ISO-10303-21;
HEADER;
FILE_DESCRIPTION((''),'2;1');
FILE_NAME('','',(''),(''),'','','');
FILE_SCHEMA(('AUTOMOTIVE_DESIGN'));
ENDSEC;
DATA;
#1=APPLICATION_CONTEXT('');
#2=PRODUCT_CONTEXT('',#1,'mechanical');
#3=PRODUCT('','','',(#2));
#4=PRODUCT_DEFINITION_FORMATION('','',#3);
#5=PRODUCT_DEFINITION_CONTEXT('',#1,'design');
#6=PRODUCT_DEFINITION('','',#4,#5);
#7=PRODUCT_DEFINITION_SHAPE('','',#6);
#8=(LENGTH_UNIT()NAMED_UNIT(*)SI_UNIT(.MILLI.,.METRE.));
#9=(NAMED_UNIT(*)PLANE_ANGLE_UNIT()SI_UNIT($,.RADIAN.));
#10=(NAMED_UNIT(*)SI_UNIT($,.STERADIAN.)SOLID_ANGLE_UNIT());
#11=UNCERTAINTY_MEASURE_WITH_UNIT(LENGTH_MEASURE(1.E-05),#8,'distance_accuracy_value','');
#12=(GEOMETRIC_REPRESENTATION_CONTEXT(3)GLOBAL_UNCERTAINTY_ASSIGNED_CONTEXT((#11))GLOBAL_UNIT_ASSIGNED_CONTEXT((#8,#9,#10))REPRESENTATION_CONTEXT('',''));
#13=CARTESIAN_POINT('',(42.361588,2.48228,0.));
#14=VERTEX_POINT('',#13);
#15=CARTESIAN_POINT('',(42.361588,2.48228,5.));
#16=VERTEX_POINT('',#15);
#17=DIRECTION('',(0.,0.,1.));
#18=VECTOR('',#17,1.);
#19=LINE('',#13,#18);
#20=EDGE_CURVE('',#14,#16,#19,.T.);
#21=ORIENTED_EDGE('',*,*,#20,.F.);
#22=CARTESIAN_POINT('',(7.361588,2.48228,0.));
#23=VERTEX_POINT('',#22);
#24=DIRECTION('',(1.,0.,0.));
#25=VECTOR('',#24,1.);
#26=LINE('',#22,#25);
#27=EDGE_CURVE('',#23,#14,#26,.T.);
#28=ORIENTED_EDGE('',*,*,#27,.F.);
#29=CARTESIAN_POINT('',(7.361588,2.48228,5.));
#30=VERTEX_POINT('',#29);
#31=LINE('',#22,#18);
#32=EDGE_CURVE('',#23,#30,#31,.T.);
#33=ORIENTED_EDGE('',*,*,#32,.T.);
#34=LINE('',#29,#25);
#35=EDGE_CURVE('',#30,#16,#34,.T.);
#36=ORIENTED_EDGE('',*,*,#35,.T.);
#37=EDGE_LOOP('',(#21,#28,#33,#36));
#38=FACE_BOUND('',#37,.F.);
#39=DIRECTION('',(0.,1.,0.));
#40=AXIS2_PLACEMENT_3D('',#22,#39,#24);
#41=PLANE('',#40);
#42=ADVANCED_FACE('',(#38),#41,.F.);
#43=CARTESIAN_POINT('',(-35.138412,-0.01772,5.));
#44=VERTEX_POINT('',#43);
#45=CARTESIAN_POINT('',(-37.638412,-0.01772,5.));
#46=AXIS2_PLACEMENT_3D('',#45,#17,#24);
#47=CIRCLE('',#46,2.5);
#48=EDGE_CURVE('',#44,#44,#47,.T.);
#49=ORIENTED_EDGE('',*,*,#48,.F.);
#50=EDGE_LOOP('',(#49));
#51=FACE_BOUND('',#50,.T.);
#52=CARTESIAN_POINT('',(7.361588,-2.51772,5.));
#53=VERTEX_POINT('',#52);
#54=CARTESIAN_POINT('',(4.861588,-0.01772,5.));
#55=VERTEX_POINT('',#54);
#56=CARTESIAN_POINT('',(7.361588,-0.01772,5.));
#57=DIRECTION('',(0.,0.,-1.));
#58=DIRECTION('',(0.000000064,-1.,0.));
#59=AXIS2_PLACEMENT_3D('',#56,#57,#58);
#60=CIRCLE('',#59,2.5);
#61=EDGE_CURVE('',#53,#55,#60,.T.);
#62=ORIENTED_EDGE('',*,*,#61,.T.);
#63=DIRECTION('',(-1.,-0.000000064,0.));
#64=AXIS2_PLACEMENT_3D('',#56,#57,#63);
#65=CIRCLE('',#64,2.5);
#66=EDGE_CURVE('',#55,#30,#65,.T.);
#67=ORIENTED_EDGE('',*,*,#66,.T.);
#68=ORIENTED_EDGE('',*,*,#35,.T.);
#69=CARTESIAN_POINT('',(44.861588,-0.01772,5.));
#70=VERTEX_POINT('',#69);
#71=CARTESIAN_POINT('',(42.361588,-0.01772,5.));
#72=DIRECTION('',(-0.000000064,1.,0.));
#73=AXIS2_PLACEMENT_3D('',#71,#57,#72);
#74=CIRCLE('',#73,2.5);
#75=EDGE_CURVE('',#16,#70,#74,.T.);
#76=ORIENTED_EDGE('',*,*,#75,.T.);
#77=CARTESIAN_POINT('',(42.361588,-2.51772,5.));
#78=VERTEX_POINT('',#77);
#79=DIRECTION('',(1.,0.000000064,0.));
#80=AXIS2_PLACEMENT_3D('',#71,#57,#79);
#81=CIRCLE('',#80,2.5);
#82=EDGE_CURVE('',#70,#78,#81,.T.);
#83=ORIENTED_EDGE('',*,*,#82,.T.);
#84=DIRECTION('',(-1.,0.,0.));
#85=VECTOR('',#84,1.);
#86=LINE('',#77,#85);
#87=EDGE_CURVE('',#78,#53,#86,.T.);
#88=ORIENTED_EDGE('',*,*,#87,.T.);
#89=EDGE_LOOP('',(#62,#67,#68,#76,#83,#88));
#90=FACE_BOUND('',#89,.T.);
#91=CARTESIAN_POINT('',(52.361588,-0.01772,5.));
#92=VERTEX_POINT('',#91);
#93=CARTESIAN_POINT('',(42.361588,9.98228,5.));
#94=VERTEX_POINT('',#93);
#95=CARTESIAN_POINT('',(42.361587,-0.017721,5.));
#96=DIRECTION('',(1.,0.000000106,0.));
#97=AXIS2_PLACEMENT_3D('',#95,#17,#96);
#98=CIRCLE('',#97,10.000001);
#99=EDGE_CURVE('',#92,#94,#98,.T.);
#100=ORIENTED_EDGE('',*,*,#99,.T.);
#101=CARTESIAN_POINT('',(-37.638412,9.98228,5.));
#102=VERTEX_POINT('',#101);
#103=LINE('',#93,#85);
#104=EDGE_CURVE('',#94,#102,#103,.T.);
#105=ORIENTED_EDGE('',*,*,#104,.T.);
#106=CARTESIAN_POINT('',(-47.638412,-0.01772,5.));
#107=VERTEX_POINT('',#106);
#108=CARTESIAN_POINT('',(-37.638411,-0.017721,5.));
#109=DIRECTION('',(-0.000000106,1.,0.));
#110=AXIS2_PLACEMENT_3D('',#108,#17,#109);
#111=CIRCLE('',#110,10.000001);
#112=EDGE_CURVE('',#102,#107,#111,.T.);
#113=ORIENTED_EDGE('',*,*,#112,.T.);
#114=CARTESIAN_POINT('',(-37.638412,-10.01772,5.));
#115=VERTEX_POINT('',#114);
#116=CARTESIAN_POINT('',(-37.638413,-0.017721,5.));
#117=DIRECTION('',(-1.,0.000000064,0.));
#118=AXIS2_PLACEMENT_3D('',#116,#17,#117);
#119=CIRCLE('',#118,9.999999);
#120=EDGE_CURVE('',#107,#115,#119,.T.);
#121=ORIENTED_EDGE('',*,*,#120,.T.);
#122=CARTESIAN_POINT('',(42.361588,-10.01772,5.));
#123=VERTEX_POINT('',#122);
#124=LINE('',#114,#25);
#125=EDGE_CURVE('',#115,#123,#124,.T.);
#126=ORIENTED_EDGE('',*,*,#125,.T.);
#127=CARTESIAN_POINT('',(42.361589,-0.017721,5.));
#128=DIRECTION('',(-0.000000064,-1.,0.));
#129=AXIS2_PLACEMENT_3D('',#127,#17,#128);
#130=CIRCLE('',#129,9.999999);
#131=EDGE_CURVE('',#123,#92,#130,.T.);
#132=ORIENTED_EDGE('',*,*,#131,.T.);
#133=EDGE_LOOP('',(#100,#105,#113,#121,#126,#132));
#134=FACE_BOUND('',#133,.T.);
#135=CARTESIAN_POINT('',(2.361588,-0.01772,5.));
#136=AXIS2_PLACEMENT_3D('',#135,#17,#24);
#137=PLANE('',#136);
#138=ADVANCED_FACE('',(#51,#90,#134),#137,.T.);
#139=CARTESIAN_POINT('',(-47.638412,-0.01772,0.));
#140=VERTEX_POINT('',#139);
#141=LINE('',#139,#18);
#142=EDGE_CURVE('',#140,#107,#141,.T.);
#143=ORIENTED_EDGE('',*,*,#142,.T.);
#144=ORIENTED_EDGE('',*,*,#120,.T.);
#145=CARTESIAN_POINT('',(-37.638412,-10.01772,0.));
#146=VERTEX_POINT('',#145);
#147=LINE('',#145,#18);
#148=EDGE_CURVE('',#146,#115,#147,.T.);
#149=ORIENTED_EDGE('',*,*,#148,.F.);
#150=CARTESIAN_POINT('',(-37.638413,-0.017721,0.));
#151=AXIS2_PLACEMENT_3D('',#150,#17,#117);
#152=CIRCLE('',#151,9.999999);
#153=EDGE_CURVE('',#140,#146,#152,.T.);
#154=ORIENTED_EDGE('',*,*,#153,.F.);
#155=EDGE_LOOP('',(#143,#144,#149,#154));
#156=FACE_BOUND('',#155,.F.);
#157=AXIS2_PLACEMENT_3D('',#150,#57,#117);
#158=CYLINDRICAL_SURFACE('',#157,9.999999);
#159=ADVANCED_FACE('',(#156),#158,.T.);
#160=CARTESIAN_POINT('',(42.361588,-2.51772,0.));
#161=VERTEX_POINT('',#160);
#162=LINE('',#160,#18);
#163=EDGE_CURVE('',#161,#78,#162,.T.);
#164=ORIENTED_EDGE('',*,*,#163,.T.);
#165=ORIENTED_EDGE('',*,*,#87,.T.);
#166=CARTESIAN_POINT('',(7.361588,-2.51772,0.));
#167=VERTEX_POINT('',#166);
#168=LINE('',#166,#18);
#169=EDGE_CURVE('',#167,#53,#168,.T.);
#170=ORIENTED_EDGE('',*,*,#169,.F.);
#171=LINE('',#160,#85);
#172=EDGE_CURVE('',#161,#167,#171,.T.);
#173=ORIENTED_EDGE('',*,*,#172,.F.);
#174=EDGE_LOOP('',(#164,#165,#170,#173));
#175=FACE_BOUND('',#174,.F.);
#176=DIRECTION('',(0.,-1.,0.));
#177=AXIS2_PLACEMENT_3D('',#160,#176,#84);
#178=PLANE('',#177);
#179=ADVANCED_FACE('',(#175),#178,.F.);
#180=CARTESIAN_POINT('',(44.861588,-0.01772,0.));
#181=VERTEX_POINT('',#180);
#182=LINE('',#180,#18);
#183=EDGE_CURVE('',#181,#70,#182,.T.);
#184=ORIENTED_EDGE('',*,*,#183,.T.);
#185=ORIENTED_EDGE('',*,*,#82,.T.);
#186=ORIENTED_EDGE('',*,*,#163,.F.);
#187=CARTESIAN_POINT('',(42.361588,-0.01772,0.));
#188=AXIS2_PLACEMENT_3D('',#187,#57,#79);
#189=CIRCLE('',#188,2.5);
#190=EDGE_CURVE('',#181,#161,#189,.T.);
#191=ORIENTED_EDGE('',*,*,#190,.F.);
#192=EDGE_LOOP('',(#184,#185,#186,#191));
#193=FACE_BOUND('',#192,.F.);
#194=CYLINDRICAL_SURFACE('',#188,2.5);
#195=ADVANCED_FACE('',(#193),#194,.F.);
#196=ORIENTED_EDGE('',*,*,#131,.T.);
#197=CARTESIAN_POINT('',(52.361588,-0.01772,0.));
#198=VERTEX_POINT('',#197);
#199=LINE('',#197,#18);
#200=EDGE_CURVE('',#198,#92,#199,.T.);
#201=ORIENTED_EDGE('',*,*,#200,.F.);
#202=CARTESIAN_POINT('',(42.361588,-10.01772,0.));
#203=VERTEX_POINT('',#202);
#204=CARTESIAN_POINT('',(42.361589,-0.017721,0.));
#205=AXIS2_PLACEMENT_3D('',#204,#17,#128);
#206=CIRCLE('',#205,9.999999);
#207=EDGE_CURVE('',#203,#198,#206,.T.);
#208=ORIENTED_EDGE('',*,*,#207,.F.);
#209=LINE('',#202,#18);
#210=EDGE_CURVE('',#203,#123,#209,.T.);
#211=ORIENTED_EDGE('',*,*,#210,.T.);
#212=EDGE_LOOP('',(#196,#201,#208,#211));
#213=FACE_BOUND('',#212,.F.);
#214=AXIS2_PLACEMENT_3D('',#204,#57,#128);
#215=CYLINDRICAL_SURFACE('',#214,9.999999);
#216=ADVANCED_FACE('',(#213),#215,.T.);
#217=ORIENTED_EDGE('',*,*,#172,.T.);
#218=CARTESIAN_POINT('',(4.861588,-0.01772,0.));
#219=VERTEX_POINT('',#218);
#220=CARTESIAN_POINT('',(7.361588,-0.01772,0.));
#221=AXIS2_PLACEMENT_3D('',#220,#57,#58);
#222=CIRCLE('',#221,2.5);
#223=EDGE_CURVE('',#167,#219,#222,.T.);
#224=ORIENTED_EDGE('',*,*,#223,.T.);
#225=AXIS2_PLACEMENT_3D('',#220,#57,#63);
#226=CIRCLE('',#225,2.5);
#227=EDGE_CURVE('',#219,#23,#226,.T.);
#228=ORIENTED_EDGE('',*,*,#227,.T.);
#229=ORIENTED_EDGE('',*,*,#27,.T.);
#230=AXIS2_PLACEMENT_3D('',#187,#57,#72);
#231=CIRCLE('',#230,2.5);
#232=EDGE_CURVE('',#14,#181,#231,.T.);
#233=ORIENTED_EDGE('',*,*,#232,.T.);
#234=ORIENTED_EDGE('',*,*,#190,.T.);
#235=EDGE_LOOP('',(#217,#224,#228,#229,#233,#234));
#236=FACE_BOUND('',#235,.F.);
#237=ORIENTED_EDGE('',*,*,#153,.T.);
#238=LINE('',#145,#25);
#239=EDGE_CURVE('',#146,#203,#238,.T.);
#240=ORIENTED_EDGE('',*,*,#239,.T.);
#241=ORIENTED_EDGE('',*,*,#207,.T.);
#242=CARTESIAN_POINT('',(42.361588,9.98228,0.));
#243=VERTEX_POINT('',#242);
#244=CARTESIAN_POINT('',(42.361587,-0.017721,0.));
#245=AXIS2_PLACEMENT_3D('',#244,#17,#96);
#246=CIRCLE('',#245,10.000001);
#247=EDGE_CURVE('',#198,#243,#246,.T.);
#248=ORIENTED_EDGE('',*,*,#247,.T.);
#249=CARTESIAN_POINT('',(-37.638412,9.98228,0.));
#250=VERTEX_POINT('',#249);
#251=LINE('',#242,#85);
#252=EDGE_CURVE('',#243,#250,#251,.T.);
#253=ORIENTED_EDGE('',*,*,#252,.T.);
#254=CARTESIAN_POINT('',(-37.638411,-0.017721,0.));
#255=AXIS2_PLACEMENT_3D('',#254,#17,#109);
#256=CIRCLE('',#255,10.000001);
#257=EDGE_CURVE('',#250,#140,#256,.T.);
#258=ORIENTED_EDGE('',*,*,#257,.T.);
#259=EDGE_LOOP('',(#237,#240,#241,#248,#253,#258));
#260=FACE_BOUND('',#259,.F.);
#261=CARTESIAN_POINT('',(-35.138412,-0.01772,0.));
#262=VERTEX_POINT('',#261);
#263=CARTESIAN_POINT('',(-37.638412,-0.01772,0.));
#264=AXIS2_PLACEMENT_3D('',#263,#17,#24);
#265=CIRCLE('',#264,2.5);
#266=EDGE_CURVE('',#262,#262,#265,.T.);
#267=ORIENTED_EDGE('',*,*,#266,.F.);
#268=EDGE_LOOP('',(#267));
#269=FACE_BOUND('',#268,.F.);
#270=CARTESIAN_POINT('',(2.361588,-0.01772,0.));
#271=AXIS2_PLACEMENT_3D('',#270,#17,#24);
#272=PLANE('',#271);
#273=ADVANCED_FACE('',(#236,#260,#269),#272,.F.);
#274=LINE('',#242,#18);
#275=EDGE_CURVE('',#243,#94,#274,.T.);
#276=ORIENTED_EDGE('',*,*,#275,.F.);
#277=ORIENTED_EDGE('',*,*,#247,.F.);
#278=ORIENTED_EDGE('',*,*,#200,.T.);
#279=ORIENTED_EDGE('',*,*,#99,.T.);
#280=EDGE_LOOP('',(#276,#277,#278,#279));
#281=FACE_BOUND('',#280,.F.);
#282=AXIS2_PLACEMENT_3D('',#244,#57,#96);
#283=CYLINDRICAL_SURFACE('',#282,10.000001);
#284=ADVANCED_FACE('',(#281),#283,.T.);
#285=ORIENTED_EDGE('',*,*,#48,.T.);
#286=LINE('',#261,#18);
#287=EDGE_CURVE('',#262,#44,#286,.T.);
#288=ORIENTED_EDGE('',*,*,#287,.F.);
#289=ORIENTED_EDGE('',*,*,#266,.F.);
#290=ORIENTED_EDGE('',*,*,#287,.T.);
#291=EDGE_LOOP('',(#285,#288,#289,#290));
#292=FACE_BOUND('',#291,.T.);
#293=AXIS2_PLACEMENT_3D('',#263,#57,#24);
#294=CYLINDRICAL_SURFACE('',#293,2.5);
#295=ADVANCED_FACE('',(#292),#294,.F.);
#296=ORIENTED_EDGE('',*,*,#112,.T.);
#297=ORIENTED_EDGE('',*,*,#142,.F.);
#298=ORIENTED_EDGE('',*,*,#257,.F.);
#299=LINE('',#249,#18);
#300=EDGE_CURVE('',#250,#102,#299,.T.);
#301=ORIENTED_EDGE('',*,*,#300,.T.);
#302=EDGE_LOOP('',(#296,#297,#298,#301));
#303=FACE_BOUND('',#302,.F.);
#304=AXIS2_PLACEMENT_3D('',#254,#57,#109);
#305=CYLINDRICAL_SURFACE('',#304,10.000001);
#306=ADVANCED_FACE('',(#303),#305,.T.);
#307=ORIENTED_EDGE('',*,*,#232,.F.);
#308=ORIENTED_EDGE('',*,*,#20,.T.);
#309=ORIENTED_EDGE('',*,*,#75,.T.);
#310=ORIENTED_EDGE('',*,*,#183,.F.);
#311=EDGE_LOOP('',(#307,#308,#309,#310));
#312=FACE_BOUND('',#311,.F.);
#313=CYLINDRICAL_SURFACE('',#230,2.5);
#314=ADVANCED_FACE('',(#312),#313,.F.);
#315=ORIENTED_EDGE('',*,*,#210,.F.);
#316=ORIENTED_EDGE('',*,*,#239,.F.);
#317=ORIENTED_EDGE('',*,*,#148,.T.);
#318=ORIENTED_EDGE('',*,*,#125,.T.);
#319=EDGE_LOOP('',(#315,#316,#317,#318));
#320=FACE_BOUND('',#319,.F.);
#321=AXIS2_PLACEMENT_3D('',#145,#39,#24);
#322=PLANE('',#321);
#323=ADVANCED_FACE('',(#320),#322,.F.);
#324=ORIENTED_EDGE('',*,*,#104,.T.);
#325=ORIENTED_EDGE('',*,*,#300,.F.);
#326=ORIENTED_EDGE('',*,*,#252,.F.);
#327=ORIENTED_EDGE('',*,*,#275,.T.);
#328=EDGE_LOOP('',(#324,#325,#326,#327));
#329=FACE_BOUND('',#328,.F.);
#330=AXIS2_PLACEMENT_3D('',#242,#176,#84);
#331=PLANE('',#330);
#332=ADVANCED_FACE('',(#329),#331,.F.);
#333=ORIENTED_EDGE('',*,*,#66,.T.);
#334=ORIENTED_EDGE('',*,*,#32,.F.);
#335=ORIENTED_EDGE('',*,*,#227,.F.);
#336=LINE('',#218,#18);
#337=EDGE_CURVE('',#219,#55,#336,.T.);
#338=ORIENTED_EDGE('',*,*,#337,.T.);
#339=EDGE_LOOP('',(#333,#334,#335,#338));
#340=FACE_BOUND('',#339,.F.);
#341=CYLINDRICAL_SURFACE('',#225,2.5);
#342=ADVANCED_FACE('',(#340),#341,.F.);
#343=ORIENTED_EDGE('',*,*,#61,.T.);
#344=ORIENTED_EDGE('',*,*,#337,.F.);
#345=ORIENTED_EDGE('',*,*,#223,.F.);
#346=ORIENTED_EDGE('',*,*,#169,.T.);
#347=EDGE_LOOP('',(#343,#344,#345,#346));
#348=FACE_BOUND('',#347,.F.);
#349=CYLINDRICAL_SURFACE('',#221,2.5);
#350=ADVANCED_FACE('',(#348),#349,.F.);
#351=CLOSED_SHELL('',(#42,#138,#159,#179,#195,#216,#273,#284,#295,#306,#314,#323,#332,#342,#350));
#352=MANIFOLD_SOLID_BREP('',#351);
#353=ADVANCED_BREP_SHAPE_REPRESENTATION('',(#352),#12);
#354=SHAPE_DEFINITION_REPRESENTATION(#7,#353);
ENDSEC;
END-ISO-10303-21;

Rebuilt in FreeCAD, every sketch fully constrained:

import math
import FreeCAD as App
import Part
import Sketcher

doc = App.newDocument("Part")
params = doc.addObject("Spreadsheet::Sheet", "Params")
for row, (alias, value) in enumerate([
    ("sketch1_diameter", "5 mm"),
    ("sketch1_radius", "10.000001 mm"),
    ("sketch1_width", "80 mm"),
    ("sketch1_width2", "35 mm"),
    ("pad1_length", "5 mm"),
], start=1):
    params.set(f"A{row}", alias)
    params.set(f"B{row}", "=" + value)
    params.setAlias(f"B{row}", alias)

body = doc.addObject("PartDesign::Body", "Body")

# Sketch on XY plane
sketch1 = doc.addObject("Sketcher::SketchObject", "Sketch")
body.addObject(sketch1)
sketch1.AttachmentSupport = (doc.XY_Plane, [""])
sketch1.MapMode = "FlatFace"
sketch1.addGeometry([
    Part.LineSegment(App.Vector(42.361588, 9.98228, 0), App.Vector(-37.638412, 9.98228, 0)),  # 0
    Part.ArcOfCircle(Part.Circle(App.Vector(-37.638411, -0.017721, 0), App.Vector(0, 0, 1), 10.000001), math.radians(90.000006), math.radians(179.999994)),  # 1
    Part.ArcOfCircle(Part.Circle(App.Vector(-37.638413, -0.017721, 0), App.Vector(0, 0, 1), 9.999999), math.radians(179.999996), math.radians(270.000004)),  # 2
    Part.LineSegment(App.Vector(-37.638412, -10.01772, 0), App.Vector(42.361588, -10.01772, 0)),  # 3
    Part.ArcOfCircle(Part.Circle(App.Vector(42.361589, -0.017721, 0), App.Vector(0, 0, 1), 9.999999), math.radians(-90.000004), math.radians(0.000004)),  # 4
    Part.ArcOfCircle(Part.Circle(App.Vector(42.361587, -0.017721, 0), App.Vector(0, 0, 1), 10.000001), math.radians(0.000006), math.radians(89.999994)),  # 5
    Part.Circle(App.Vector(-37.638412, -0.01772, 0), App.Vector(0, 0, 1), 2.5),  # 6
    Part.ArcOfCircle(Part.Circle(App.Vector(7.361588, -0.01772, 0), App.Vector(0, 0, 1), 2.5), math.radians(179.999996), math.radians(270.000004)),  # 7
    Part.ArcOfCircle(Part.Circle(App.Vector(7.361588, -0.01772, 0), App.Vector(0, 0, 1), 2.5), math.radians(89.999996), math.radians(180.000004)),  # 8
    Part.LineSegment(App.Vector(7.361588, 2.48228, 0), App.Vector(42.361588, 2.48228, 0)),  # 9
    Part.ArcOfCircle(Part.Circle(App.Vector(42.361588, -0.01772, 0), App.Vector(0, 0, 1), 2.5), math.radians(-0.000004), math.radians(90.000004)),  # 10
    Part.ArcOfCircle(Part.Circle(App.Vector(42.361588, -0.01772, 0), App.Vector(0, 0, 1), 2.5), math.radians(-90.000004), math.radians(0.000004)),  # 11
    Part.LineSegment(App.Vector(42.361588, -2.51772, 0), App.Vector(7.361588, -2.51772, 0)),  # 12
], False)
sketch1.addConstraint([
    Sketcher.Constraint("Tangent", 0, 2, 1, 1),
    Sketcher.Constraint("Tangent", 1, 2, 2, 1),
    Sketcher.Constraint("Tangent", 2, 2, 3, 1),
    Sketcher.Constraint("Tangent", 3, 2, 4, 1),
    Sketcher.Constraint("Tangent", 4, 2, 5, 1),
    Sketcher.Constraint("Tangent", 5, 2, 0, 1),
    Sketcher.Constraint("Tangent", 7, 1, 8, 2),
    Sketcher.Constraint("Tangent", 8, 1, 9, 1),
    Sketcher.Constraint("Tangent", 9, 2, 10, 2),
    Sketcher.Constraint("Tangent", 10, 1, 11, 2),
    Sketcher.Constraint("Tangent", 11, 1, 12, 1),
    Sketcher.Constraint("Tangent", 12, 2, 7, 2),
    Sketcher.Constraint("Horizontal", 0),
    Sketcher.Constraint("Horizontal", 3),
    Sketcher.Constraint("Horizontal", 9),
    Sketcher.Constraint("Horizontal", 12),
    Sketcher.Constraint("Coincident", 6, 3, 1, 3),
    Sketcher.Constraint("Coincident", 10, 3, 4, 3),
    Sketcher.Constraint("Equal", 1, 2),
    Sketcher.Constraint("Equal", 2, 4),
    Sketcher.Constraint("Equal", 6, 7),
    Sketcher.Constraint("Equal", 7, 8),
    Sketcher.Constraint("Equal", 8, 10),
    Sketcher.Constraint("Horizontal", 11, 3, 1, 2),
    Sketcher.Constraint("Horizontal", 1, 2, 4, 2),
    Sketcher.Constraint("Horizontal", 4, 2, 7, 1),
    Sketcher.Constraint("Horizontal", 7, 1, 10, 1),
    Sketcher.Constraint("Diameter", 6, 5.0),
    Sketcher.Constraint("Radius", 1, 10.000001),
    Sketcher.Constraint("DistanceX", 0, 2, 0, 1, 80.0),
    Sketcher.Constraint("DistanceX", 9, 1, 9, 2, 35.0),
    Sketcher.Constraint("DistanceX", 1, 3, -1, 1, 37.638411),
    Sketcher.Constraint("DistanceY", 1, 3, -1, 1, 0.017721),
])
sketch1.setExpression("Constraints[27]", "Params.sketch1_diameter")
sketch1.setExpression("Constraints[28]", "Params.sketch1_radius")
sketch1.setExpression("Constraints[29]", "Params.sketch1_width")
sketch1.setExpression("Constraints[30]", "Params.sketch1_width2")
pad1 = doc.addObject("PartDesign::Pad", "Pad")
body.addObject(pad1)
pad1.Profile = sketch1
pad1.setExpression("Length", "Params.pad1_length")

doc.recompute()
